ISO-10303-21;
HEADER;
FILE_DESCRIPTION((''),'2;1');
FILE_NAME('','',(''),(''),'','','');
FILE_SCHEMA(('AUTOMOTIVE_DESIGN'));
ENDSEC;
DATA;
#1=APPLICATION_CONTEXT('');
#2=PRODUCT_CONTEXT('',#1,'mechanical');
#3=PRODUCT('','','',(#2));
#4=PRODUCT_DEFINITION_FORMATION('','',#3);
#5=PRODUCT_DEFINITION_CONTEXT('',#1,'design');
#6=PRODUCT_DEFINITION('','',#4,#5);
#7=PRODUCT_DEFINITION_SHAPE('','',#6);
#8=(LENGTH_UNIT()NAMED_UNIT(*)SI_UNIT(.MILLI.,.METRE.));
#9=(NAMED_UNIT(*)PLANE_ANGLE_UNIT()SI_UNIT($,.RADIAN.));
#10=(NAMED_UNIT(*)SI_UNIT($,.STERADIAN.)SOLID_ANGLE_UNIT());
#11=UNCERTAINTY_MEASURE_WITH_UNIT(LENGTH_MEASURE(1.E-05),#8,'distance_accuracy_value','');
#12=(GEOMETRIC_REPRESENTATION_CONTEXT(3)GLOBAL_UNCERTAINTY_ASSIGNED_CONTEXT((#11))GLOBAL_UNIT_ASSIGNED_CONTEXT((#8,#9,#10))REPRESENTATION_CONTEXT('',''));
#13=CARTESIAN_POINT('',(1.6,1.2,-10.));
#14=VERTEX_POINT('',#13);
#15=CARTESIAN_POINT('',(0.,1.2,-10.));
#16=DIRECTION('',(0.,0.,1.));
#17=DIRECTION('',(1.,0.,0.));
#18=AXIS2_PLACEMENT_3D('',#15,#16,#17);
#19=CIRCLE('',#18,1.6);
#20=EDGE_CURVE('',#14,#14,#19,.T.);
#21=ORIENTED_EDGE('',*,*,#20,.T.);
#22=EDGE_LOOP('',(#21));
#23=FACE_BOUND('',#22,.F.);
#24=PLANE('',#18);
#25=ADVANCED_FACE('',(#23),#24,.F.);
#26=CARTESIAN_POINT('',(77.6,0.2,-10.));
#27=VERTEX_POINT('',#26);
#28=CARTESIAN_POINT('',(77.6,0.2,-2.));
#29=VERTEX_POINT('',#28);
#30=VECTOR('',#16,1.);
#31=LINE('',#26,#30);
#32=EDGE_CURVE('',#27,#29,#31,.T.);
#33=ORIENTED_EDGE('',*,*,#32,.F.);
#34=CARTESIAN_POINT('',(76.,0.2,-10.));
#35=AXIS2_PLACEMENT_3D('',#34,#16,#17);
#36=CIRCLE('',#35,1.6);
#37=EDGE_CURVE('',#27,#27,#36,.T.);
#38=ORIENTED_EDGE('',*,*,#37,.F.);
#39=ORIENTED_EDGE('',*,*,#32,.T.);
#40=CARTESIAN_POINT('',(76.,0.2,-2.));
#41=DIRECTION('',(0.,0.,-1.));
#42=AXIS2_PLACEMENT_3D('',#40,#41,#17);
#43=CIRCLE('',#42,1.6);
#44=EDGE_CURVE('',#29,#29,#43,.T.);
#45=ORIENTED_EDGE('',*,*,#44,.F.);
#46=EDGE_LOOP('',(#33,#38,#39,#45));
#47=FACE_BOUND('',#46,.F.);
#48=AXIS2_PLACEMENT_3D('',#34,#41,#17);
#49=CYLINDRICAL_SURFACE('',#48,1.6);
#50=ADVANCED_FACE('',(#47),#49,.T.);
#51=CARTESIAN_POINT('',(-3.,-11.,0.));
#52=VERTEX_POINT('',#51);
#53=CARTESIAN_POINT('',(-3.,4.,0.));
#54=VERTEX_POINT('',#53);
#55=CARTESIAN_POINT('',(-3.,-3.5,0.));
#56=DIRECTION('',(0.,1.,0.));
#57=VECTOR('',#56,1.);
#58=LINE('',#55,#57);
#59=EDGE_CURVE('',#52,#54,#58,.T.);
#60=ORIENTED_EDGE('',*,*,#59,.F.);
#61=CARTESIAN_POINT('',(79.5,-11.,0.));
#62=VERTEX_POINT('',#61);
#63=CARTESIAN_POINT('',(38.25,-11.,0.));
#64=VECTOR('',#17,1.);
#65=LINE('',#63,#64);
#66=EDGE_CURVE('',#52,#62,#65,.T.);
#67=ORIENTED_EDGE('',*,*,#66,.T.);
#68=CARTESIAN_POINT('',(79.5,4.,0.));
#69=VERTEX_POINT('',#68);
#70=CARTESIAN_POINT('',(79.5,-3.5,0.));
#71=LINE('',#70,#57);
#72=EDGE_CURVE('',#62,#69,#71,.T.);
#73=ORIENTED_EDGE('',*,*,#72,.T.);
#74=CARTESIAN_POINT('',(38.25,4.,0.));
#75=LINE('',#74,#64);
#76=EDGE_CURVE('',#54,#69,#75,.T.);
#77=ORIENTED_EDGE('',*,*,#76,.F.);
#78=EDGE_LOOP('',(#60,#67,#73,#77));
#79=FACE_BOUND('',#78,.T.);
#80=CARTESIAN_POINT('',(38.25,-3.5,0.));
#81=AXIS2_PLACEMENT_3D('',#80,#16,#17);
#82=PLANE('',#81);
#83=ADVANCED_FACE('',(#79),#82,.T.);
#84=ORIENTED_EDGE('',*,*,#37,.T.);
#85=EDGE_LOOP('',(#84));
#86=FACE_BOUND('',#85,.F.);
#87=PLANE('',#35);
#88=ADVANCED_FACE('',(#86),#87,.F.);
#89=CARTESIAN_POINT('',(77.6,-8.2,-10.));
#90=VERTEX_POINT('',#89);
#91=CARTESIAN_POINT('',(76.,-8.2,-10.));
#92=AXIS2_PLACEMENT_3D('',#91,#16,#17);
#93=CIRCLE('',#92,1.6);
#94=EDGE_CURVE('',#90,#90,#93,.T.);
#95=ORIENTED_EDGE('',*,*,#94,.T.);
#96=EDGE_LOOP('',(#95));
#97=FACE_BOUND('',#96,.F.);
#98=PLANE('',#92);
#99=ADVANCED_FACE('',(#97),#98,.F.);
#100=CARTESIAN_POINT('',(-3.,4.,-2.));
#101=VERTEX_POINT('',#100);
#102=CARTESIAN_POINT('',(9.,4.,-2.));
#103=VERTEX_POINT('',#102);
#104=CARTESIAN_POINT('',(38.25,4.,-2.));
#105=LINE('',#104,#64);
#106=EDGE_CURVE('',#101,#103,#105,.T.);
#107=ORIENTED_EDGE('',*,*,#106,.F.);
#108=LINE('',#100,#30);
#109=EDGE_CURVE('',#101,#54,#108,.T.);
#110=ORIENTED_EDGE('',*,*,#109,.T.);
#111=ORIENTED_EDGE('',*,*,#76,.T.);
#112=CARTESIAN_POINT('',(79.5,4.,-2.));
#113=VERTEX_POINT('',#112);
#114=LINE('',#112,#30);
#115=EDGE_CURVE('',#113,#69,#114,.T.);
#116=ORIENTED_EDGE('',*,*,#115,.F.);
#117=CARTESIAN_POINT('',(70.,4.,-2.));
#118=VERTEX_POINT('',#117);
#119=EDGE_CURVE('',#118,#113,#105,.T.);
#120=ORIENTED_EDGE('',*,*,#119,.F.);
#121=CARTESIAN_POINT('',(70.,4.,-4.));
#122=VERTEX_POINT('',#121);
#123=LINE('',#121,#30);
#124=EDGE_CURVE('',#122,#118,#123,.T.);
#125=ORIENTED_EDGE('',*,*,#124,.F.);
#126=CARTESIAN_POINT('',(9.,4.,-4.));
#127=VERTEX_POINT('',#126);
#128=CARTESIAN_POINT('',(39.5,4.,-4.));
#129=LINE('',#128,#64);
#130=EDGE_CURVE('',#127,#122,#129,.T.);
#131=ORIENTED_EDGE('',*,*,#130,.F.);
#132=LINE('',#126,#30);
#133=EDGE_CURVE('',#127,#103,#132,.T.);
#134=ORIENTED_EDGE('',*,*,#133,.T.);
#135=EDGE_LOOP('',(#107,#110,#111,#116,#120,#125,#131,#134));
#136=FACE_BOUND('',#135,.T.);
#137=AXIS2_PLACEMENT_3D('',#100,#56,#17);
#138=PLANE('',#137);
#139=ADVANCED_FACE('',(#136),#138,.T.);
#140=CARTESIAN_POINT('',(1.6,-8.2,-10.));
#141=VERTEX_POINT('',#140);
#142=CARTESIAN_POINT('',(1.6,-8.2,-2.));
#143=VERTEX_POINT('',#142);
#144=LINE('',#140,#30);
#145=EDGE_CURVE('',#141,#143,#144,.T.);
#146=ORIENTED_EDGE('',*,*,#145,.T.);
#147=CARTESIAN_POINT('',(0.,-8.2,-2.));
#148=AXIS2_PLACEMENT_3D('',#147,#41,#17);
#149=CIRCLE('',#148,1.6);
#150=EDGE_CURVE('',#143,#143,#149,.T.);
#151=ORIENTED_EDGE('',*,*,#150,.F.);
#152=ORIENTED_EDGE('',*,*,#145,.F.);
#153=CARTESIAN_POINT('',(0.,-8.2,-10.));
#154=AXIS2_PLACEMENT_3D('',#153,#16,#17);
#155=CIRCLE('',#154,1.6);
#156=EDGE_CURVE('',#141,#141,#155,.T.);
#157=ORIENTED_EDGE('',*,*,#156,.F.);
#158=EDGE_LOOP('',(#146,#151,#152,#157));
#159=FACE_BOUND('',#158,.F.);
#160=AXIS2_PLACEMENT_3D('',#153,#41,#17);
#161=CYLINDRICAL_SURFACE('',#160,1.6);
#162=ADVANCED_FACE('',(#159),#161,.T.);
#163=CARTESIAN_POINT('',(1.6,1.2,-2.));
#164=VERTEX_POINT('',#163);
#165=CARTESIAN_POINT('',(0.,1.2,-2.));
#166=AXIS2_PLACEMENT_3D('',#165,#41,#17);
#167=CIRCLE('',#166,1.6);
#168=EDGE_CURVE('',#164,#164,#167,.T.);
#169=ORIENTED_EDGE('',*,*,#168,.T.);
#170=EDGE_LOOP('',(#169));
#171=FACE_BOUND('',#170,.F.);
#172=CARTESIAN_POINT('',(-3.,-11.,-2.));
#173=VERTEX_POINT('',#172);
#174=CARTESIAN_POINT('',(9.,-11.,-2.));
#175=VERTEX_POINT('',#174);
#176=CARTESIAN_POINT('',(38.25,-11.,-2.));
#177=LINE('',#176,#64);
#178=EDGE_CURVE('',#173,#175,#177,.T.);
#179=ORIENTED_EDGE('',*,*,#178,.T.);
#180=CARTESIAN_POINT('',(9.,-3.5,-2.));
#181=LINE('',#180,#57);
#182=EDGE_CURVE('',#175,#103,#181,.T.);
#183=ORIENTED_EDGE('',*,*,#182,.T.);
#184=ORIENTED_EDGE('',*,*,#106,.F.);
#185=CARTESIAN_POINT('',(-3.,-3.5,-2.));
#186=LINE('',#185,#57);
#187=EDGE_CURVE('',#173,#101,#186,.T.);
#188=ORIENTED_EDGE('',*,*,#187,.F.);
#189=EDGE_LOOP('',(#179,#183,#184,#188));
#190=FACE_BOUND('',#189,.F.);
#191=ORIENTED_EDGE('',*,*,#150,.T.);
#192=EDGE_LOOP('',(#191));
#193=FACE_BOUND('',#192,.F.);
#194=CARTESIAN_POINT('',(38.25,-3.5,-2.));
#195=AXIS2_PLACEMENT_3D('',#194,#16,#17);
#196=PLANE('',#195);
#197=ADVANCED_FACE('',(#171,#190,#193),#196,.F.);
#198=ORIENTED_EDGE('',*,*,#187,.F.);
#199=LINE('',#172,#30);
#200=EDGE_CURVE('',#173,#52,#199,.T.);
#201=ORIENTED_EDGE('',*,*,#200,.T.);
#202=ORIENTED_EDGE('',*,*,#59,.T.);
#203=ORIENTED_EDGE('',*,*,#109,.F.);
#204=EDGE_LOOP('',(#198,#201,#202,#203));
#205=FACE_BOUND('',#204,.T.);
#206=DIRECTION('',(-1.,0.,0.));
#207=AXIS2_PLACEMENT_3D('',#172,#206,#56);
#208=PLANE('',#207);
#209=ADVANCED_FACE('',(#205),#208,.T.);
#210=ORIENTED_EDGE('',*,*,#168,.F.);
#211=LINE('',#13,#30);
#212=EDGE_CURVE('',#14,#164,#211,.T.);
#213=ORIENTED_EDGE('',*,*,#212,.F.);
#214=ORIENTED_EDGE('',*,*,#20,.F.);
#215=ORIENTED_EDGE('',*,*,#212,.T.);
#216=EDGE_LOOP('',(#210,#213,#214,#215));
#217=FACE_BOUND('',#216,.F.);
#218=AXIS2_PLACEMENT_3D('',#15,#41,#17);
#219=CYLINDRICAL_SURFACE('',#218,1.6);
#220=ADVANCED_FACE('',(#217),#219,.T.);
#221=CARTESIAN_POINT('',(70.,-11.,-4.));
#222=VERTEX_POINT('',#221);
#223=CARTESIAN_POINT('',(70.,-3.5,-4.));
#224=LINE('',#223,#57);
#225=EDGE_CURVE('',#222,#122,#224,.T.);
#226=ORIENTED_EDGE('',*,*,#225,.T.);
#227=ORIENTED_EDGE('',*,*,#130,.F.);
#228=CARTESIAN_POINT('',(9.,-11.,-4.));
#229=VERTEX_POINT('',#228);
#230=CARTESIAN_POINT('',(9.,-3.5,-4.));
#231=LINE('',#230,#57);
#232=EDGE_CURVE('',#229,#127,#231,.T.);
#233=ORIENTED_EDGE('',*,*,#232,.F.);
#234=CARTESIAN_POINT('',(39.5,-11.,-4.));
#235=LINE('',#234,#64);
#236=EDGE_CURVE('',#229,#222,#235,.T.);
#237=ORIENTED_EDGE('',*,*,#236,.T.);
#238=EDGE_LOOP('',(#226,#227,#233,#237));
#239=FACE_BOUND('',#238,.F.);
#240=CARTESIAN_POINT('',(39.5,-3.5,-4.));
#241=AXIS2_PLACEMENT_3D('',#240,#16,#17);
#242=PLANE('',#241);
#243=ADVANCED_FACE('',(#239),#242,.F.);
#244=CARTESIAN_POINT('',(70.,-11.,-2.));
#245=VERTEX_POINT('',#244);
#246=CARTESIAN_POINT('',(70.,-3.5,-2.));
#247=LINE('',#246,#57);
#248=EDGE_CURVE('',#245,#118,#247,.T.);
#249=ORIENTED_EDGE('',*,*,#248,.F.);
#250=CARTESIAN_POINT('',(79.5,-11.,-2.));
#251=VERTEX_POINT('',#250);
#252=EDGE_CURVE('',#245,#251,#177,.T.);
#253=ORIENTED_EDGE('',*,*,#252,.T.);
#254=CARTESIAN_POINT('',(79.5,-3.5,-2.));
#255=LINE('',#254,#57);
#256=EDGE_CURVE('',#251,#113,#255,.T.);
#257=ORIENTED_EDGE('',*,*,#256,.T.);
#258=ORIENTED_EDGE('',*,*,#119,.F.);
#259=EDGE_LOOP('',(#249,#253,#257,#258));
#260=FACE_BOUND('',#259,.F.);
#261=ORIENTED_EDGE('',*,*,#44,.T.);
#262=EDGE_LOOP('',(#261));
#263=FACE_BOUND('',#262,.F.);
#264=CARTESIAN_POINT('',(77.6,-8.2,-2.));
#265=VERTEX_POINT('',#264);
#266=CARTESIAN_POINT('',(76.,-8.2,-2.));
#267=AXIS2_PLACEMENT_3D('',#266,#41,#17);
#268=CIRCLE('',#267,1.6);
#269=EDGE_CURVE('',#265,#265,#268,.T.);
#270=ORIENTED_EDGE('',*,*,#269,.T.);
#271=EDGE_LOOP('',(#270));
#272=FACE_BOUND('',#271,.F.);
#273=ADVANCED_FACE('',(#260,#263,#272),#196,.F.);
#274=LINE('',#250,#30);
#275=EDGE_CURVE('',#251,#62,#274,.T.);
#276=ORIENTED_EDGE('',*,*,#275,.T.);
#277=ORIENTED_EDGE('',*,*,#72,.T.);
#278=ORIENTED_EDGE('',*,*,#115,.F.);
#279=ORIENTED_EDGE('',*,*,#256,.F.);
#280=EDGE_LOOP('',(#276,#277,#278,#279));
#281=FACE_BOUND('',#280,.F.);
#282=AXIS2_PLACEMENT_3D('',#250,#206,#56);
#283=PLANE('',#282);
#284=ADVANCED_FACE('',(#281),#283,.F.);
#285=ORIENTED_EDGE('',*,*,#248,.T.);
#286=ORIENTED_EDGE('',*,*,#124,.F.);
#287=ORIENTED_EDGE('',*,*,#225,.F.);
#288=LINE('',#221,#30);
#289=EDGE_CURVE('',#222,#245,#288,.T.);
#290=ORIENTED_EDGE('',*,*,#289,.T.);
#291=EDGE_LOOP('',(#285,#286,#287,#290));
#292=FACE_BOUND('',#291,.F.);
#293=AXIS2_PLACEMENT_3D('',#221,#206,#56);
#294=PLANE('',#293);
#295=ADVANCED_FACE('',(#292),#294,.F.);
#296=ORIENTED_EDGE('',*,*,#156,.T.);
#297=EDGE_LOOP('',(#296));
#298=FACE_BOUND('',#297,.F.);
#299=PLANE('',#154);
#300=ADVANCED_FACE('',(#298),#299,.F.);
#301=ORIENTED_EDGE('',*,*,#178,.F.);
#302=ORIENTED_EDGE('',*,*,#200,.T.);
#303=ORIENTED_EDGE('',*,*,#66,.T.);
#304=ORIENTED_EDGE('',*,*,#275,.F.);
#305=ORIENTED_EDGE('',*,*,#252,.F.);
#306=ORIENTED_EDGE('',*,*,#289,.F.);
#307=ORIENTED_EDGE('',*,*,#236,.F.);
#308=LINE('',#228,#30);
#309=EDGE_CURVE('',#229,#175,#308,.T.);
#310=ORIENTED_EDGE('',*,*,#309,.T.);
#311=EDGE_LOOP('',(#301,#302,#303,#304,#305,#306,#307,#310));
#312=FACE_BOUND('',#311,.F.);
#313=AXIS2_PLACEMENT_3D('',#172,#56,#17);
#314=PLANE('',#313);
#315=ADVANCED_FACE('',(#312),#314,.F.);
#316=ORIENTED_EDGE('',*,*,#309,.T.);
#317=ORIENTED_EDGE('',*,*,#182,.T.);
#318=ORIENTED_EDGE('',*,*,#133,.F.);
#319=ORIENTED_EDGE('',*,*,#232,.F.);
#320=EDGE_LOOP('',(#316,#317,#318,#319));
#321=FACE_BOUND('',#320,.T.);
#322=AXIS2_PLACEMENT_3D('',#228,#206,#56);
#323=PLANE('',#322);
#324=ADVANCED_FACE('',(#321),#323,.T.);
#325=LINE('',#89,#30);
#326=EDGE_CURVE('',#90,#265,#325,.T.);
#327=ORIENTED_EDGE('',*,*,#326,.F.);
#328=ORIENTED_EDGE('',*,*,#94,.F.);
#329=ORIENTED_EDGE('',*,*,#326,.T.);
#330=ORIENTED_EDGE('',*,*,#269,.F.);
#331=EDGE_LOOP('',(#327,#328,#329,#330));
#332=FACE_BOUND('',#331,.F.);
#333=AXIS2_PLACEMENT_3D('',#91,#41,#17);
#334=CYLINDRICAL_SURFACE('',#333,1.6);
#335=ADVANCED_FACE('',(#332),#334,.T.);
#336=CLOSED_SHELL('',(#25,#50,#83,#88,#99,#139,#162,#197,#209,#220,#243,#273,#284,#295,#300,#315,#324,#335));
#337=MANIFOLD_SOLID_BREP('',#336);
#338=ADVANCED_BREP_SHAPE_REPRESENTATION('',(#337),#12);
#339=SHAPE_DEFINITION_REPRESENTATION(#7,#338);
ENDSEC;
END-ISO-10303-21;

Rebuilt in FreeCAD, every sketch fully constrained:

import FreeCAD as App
import Part
import Sketcher
Q = App.Units.Quantity

doc = App.newDocument("Part")
body = doc.addObject("PartDesign::Body", "Body")

# Sketch on XY plane
sketch1 = body.newObject("Sketcher::SketchObject", "Sketch")
sketch1.AttachmentSupport = (doc.getObject("XY_Plane"), [""])
sketch1.MapMode = "FlatFace"
sketch1.AttachmentOffset = App.Placement(App.Vector(0, 0, -10), App.Rotation())
sketch1.addGeometry(Part.Circle(App.Vector(0, 1.2, 0), App.Vector(0, 0, 1), 1.6), False)
sketch1.addConstraint([
    Sketcher.Constraint("PointOnObject", 0, 3, -2),
    Sketcher.Constraint("Diameter", 0, Q("3.2 mm")),
    Sketcher.Constraint("DistanceY", -1, 1, 0, 3, Q("1.2 mm")),
])
pad1 = body.newObject("PartDesign::Pad", "Pad")
pad1.Profile = sketch1
pad1.Length = 10
body2 = doc.addObject("PartDesign::Body", "Body001")

# Sketch on XY plane
sketch2 = body2.newObject("Sketcher::SketchObject", "Sketch001")
sketch2.AttachmentSupport = (doc.getObject("XY_Plane001"), [""])
sketch2.MapMode = "FlatFace"
sketch2.AttachmentOffset = App.Placement(App.Vector(0, 0, -2), App.Rotation())
sketch2.addGeometry([
    Part.LineSegment(App.Vector(12, 15, 0), App.Vector(12, 0, 0)),
    Part.LineSegment(App.Vector(12, 0, 0), App.Vector(73, 0, 0)),
    Part.LineSegment(App.Vector(73, 0, 0), App.Vector(73, 15, 0)),
    Part.LineSegment(App.Vector(73, 15, 0), App.Vector(12, 15, 0)),
], False)
sketch2.addConstraint([
    Sketcher.Constraint("Coincident", 0, 2, 1, 1),
    Sketcher.Constraint("Coincident", 1, 2, 2, 1),
    Sketcher.Constraint("Coincident", 2, 2, 3, 1),
    Sketcher.Constraint("Coincident", 3, 2, 0, 1),
    Sketcher.Constraint("Vertical", 0),
    Sketcher.Constraint("Horizontal", 1),
    Sketcher.Constraint("Vertical", 2),
    Sketcher.Constraint("Horizontal", 3),
    Sketcher.Constraint("PointOnObject", 0, 2, -1),
    Sketcher.Constraint("DistanceX", 1, 1, 1, 2, Q("61 mm")),
    Sketcher.Constraint("DistanceY", 0, 2, 0, 1, Q("15 mm")),
    Sketcher.Constraint("DistanceX", -1, 1, 0, 2, Q("12 mm")),
])
pad2 = body2.newObject("PartDesign::Pad", "Pad001")
pad2.Profile = sketch2
pad2.Length = 2
body3 = doc.addObject("PartDesign::Body", "Body002")

# Sketch on XY plane
sketch3 = body3.newObject("Sketcher::SketchObject", "Sketch002")
sketch3.AttachmentSupport = (doc.getObject("XY_Plane002"), [""])
sketch3.MapMode = "FlatFace"
sketch3.addGeometry([
    Part.LineSegment(App.Vector(0, 15, 0), App.Vector(0, 0, 0)),
    Part.LineSegment(App.Vector(0, 0, 0), App.Vector(82.5, 0, 0)),
    Part.LineSegment(App.Vector(82.5, 0, 0), App.Vector(82.5, 15, 0)),
    Part.LineSegment(App.Vector(82.5, 15, 0), App.Vector(0, 15, 0)),
], False)
sketch3.addConstraint([
    Sketcher.Constraint("Coincident", 0, 2, 1, 1),
    Sketcher.Constraint("Coincident", 1, 2, 2, 1),
    Sketcher.Constraint("Coincident", 2, 2, 3, 1),
    Sketcher.Constraint("Coincident", 3, 2, 0, 1),
    Sketcher.Constraint("Vertical", 0),
    Sketcher.Constraint("Horizontal", 1),
    Sketcher.Constraint("Vertical", 2),
    Sketcher.Constraint("Horizontal", 3),
    Sketcher.Constraint("Coincident", 0, 2, -1, 1),
    Sketcher.Constraint("DistanceY", 0, 2, 0, 1, Q("15 mm")),
    Sketcher.Constraint("DistanceX", 1, 1, 1, 2, Q("82.5 mm")),
])
pad3 = body3.newObject("PartDesign::Pad", "Pad002")
pad3.Profile = sketch3
pad3.Length = 2
doc.recompute()

boolean = body3.newObject("PartDesign::Boolean", "Boolean")
boolean.Type = "Fuse"
boolean.addObjects([body2])
body4 = doc.addObject("PartDesign::Body", "Body003")
doc.recompute()

body3.Placement = App.Placement(App.Vector(-3, -11, -2), App.Rotation(App.Vector(0, 0, 1), 0))
boolean2 = body4.newObject("PartDesign::Boolean", "Boolean001")
boolean2.Type = "Fuse"
boolean2.addObjects([body3])
doc.recompute()

boolean3 = body4.newObject("PartDesign::Boolean", "Boolean002")
boolean3.Type = "Fuse"
boolean3.addObjects([body])
body5 = doc.addObject("PartDesign::Body", "Body004")

# Sketch on XY plane
sketch4 = body5.newObject("Sketcher::SketchObject", "Sketch003")
sketch4.AttachmentSupport = (doc.getObject("XY_Plane004"), [""])
sketch4.MapMode = "FlatFace"
sketch4.AttachmentOffset = App.Placement(App.Vector(0, 0, -10), App.Rotation())
sketch4.addGeometry(Part.Circle(App.Vector(76, 0.2, 0), App.Vector(0, 0, 1), 1.6), False)
sketch4.addConstraint([
    Sketcher.Constraint("Diameter", 0, Q("3.2 mm")),
    Sketcher.Constraint("DistanceX", -1, 1, 0, 3, Q("76 mm")),
    Sketcher.Constraint("DistanceY", -1, 1, 0, 3, Q("0.2 mm")),
])
pad4 = body5.newObject("PartDesign::Pad", "Pad003")
pad4.Profile = sketch4
pad4.Length = 10
doc.recompute()

boolean4 = body5.newObject("PartDesign::Boolean", "Boolean003")
boolean4.Type = "Fuse"
boolean4.addObjects([body4])
body6 = doc.addObject("PartDesign::Body", "Body005")

# Sketch on XY plane
sketch5 = body6.newObject("Sketcher::SketchObject", "Sketch004")
sketch5.AttachmentSupport = (doc.getObject("XY_Plane005"), [""])
sketch5.MapMode = "FlatFace"
sketch5.AttachmentOffset = App.Placement(App.Vector(0, 0, -10), App.Rotation())
sketch5.addGeometry(Part.Circle(App.Vector(76, -8.2, 0), App.Vector(0, 0, 1), 1.6), False)
sketch5.addConstraint([
    Sketcher.Constraint("Diameter", 0, Q("3.2 mm")),
    Sketcher.Constraint("DistanceX", -1, 1, 0, 3, Q("76 mm")),
    Sketcher.Constraint("DistanceY", 0, 3, -1, 1, Q("8.2 mm")),
])
pad5 = body6.newObject("PartDesign::Pad", "Pad004")
pad5.Profile = sketch5
pad5.Length = 10
doc.recompute()

boolean5 = body6.newObject("PartDesign::Boolean", "Boolean004")
boolean5.Type = "Fuse"
boolean5.addObjects([body5])
body7 = doc.addObject("PartDesign::Body", "Body006")

# Sketch on XY plane
sketch6 = body7.newObject("Sketcher::SketchObject", "Sketch005")
sketch6.AttachmentSupport = (doc.getObject("XY_Plane006"), [""])
sketch6.MapMode = "FlatFace"
sketch6.AttachmentOffset = App.Placement(App.Vector(0, 0, -10), App.Rotation())
sketch6.addGeometry(Part.Circle(App.Vector(0, -8.2, 0), App.Vector(0, 0, 1), 1.6), False)
sketch6.addConstraint([
    Sketcher.Constraint("PointOnObject", 0, 3, -2),
    Sketcher.Constraint("Diameter", 0, Q("3.2 mm")),
    Sketcher.Constraint("DistanceY", 0, 3, -1, 1, Q("8.2 mm")),
])
pad6 = body7.newObject("PartDesign::Pad", "Pad005")
pad6.Profile = sketch6
pad6.Length = 10
doc.recompute()

boolean6 = body7.newObject("PartDesign::Boolean", "Boolean005")
boolean6.Type = "Fuse"
boolean6.addObjects([body6])

doc.recompute()
